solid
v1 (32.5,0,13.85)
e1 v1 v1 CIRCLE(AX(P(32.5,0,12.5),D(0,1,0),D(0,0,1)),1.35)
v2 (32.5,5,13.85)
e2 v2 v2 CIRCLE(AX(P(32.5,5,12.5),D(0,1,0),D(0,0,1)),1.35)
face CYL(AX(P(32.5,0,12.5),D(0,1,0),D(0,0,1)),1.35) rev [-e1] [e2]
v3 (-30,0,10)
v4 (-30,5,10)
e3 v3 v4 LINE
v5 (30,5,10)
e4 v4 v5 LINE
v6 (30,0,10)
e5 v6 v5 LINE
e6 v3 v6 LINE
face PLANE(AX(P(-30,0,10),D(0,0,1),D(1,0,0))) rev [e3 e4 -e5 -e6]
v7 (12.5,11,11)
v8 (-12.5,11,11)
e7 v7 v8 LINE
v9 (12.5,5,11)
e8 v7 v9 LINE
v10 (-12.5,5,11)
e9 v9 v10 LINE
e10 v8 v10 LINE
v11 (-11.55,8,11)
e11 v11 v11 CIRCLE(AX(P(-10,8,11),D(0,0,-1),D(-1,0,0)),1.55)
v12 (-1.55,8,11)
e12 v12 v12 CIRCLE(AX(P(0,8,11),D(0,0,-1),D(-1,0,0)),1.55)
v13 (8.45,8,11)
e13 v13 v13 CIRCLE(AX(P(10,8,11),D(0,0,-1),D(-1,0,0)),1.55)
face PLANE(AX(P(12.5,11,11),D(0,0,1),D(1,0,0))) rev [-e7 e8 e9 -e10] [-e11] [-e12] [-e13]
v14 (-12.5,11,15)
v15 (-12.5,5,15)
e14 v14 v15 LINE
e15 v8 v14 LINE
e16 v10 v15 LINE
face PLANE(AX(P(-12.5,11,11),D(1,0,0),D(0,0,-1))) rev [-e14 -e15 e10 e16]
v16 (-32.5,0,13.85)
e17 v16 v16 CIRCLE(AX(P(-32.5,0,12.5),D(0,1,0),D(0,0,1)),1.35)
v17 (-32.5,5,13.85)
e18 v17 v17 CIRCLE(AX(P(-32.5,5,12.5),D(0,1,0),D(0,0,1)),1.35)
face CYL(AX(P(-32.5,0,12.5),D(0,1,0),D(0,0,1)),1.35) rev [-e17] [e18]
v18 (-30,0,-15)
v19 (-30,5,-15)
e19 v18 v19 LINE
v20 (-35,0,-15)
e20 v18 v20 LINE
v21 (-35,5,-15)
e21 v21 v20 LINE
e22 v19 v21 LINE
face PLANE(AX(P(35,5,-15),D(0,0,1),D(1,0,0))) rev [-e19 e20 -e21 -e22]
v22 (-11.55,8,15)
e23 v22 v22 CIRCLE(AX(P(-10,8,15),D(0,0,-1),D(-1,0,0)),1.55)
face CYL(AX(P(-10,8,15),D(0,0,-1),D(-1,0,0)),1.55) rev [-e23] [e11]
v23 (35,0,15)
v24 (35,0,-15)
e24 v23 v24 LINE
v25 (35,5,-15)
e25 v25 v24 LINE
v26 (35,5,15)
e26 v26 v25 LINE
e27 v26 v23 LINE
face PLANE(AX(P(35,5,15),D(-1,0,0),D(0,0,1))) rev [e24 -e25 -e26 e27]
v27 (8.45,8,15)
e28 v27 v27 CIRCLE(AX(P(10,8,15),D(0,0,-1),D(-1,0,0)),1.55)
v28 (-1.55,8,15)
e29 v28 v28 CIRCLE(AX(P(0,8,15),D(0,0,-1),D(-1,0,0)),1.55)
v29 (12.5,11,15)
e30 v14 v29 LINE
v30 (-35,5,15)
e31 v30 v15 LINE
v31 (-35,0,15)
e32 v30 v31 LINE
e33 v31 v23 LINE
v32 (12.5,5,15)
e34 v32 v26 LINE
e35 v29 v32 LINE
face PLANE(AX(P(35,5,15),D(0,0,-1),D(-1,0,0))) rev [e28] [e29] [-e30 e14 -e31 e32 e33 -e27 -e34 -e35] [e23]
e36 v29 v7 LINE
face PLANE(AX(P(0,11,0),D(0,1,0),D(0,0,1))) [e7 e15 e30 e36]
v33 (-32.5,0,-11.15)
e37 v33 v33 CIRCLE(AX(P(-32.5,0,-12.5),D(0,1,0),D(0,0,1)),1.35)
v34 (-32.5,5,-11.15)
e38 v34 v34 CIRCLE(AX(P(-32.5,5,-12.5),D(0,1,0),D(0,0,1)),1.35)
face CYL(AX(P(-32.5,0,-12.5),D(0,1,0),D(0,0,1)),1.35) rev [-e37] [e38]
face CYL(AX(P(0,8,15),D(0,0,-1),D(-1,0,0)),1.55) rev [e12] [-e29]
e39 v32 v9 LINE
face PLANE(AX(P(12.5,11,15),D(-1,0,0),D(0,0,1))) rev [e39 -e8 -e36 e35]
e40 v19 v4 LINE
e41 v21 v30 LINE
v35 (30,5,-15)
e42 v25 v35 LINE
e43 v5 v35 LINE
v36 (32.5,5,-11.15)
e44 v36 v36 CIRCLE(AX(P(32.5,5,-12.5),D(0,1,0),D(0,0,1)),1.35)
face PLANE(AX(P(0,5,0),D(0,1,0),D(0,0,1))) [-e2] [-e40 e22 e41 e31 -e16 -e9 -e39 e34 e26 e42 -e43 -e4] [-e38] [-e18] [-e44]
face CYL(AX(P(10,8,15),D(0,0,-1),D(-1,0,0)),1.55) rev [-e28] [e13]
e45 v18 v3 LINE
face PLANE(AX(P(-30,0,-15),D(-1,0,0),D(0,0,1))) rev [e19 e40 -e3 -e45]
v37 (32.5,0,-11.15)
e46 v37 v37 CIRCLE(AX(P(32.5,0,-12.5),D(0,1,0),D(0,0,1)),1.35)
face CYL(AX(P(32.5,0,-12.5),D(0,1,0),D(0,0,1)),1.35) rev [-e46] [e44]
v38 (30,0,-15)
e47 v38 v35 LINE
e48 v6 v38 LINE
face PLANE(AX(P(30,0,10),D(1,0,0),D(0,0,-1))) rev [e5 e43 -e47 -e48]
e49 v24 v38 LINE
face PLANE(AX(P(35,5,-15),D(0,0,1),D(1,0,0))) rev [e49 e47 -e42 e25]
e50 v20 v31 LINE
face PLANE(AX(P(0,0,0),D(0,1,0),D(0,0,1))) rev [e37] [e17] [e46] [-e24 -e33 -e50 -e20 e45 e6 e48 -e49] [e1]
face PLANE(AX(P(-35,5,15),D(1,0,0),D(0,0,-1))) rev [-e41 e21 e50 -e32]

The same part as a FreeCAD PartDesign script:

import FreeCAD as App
import Part
import Sketcher

doc = App.newDocument("Part")
body = doc.addObject("PartDesign::Body", "Body")

sketch1 = body.newObject("Sketcher::SketchObject", "Sketch")
sketch1.AttachmentSupport = (doc.getObject("XZ_Plane"), [""])
sketch1.MapMode = "FlatFace"
sketch1.addGeometry(Part.LineSegment(App.Vector(-35, -15, 0), App.Vector(-35, 15, 0)), False)
sketch1.addGeometry(Part.LineSegment(App.Vector(-35, 15, 0), App.Vector(35, 15, 0)), False)
sketch1.addGeometry(Part.LineSegment(App.Vector(35, 15, 0), App.Vector(35, -15, 0)), False)
sketch1.addGeometry(Part.LineSegment(App.Vector(35, -15, 0), App.Vector(-35, -15, 0)), False)
sketch1.addConstraint(Sketcher.Constraint("Coincident", 0, 2, 1, 1))
sketch1.addConstraint(Sketcher.Constraint("Coincident", 1, 2, 2, 1))
sketch1.addConstraint(Sketcher.Constraint("Coincident", 2, 2, 3, 1))
sketch1.addConstraint(Sketcher.Constraint("Coincident", 3, 2, 0, 1))
sketch1.addConstraint(Sketcher.Constraint("Vertical", 0))
sketch1.addConstraint(Sketcher.Constraint("Horizontal", 1))
sketch1.addConstraint(Sketcher.Constraint("Vertical", 2))
sketch1.addConstraint(Sketcher.Constraint("Horizontal", 3))
sketch1.addConstraint(Sketcher.Constraint("Symmetric", 0, 2, 2, 2, -1, 1))
sketch1.addConstraint(Sketcher.Constraint("DistanceX", 1, 1, 1, 2, 70.0))
sketch1.addConstraint(Sketcher.Constraint("DistanceY", 0, 1, 0, 2, 30.0))
pad1 = body.newObject("PartDesign::Pad", "Pad")
pad1.Profile = sketch1
pad1.Length = 5
pad1.Reversed = True

sketch2 = body.newObject("Sketcher::SketchObject", "Sketch001")
sketch2.AttachmentSupport = (doc.getObject("XZ_Plane"), [""])
sketch2.MapMode = "FlatFace"
sketch2.AttachmentOffset = App.Placement(App.Vector(0, 0, -5), App.Rotation())
sketch2.addGeometry(Part.Circle(App.Vector(-32.5, -12.5, 0), App.Vector(0, 0, 1), 1.4), False)
sketch2.addGeometry(Part.Circle(App.Vector(32.5, -12.5, 0), App.Vector(0, 0, 1), 1.4), False)
sketch2.addGeometry(Part.Circle(App.Vector(-32.5, 12.5, 0), App.Vector(0, 0, 1), 1.4), False)
sketch2.addGeometry(Part.Circle(App.Vector(32.5, 12.5, 0), App.Vector(0, 0, 1), 1.4), False)
sketch2.addConstraint(Sketcher.Constraint("Equal", 0, 1))
sketch2.addConstraint(Sketcher.Constraint("Equal", 1, 2))
sketch2.addConstraint(Sketcher.Constraint("Equal", 2, 3))
sketch2.addConstraint(Sketcher.Constraint("Symmetric", 1, 3, 2, 3, -1, 1))
sketch2.addConstraint(Sketcher.Constraint("Symmetric", 0, 3, 3, 3, -1, 1))
sketch2.addConstraint(Sketcher.Constraint("Symmetric", 0, 3, 1, 3, -2))
sketch2.addConstraint(Sketcher.Constraint("Diameter", 0, 2.7))
sketch2.addConstraint(Sketcher.Constraint("DistanceX", 0, 3, 1, 3, 65.0))
sketch2.addConstraint(Sketcher.Constraint("DistanceY", 0, 3, 2, 3, 25.0))
pocket1 = body.newObject("PartDesign::Pocket", "Pocket")
pocket1.Profile = sketch2
pocket1.Type = "ThroughAll"
pocket1.Reversed = True

sketch3 = body.newObject("Sketcher::SketchObject", "Sketch002")
sketch3.AttachmentSupport = (doc.getObject("XZ_Plane"), [""])
sketch3.MapMode = "FlatFace"
sketch3.AttachmentOffset = App.Placement(App.Vector(0, 0, -5), App.Rotation())
sketch3.addGeometry(Part.LineSegment(App.Vector(-12.5, 11, 0), App.Vector(-12.5, 15, 0)), False)
sketch3.addGeometry(Part.LineSegment(App.Vector(-12.5, 15, 0), App.Vector(12.5, 15, 0)), False)
sketch3.addGeometry(Part.LineSegment(App.Vector(12.5, 15, 0), App.Vector(12.5, 11, 0)), False)
sketch3.addGeometry(Part.LineSegment(App.Vector(12.5, 11, 0), App.Vector(-12.5, 11, 0)), False)
sketch3.addConstraint(Sketcher.Constraint("Coincident", 0, 2, 1, 1))
sketch3.addConstraint(Sketcher.Constraint("Coincident", 1, 2, 2, 1))
sketch3.addConstraint(Sketcher.Constraint("Coincident", 2, 2, 3, 1))
sketch3.addConstraint(Sketcher.Constraint("Coincident", 3, 2, 0, 1))
sketch3.addConstraint(Sketcher.Constraint("Vertical", 0))
sketch3.addConstraint(Sketcher.Constraint("Horizontal", 1))
sketch3.addConstraint(Sketcher.Constraint("Vertical", 2))
sketch3.addConstraint(Sketcher.Constraint("Horizontal", 3))
sketch3.addConstraint(Sketcher.Constraint("DistanceX", 1, 1, 1, 2, 25.0))
sketch3.addConstraint(Sketcher.Constraint("DistanceY", 0, 1, 0, 2, 4.0))
sketch3.addConstraint(Sketcher.Constraint("DistanceY", -1, 1, 0, 2, 15.0))
sketch3.addConstraint(Sketcher.Constraint("DistanceX", 0, 2, -1, 1, 12.5))
pad2 = body.newObject("PartDesign::Pad", "Pad001")
pad2.Profile = sketch3
pad2.Length = 6
pad2.Reversed = True

sketch4 = body.newObject("Sketcher::SketchObject", "Sketch003")
sketch4.AttachmentSupport = (doc.getObject("XY_Plane"), [""])
sketch4.MapMode = "FlatFace"
sketch4.AttachmentOffset = App.Placement(App.Vector(0, 0, 11), App.Rotation())
sketch4.addGeometry(Part.Circle(App.Vector(10, 8, 0), App.Vector(0, 0, 1), 1.6), False)
sketch4.addGeometry(Part.Circle(App.Vector(0, 8, 0), App.Vector(0, 0, 1), 1.6), False)
sketch4.addGeometry(Part.Circle(App.Vector(-10, 8, 0), App.Vector(0, 0, 1), 1.6), False)
sketch4.addConstraint(Sketcher.Constraint("Equal", 0, 1))
sketch4.addConstraint(Sketcher.Constraint("Equal", 1, 2))
sketch4.addConstraint(Sketcher.Constraint("Symmetric", 0, 3, 2, 3, -2))
sketch4.addConstraint(Sketcher.Constraint("PointOnObject", 1, 3, -2))
sketch4.addConstraint(Sketcher.Constraint("Horizontal", 0, 3, 1, 3))
sketch4.addConstraint(Sketcher.Constraint("Diameter", 0, 3.1))
sketch4.addConstraint(Sketcher.Constraint("DistanceX", -1, 1, 0, 3, 10.0))
sketch4.addConstraint(Sketcher.Constraint("DistanceY", -1, 1, 0, 3, 8.0))
pocket2 = body.newObject("PartDesign::Pocket", "Pocket001")
pocket2.Profile = sketch4
pocket2.Type = "ThroughAll"
pocket2.Reversed = True

sketch5 = body.newObject("Sketcher::SketchObject", "Sketch004")
sketch5.AttachmentSupport = (doc.getObject("XZ_Plane"), [""])
sketch5.MapMode = "FlatFace"
sketch5.AttachmentOffset = App.Placement(App.Vector(0, 0, -5), App.Rotation())
sketch5.addGeometry(Part.LineSegment(App.Vector(-30, -15, 0), App.Vector(-30, 10, 0)), False)
sketch5.addGeometry(Part.LineSegment(App.Vector(-30, 10, 0), App.Vector(30, 10, 0)), False)
sketch5.addGeometry(Part.LineSegment(App.Vector(30, 10, 0), App.Vector(30, -15, 0)), False)
sketch5.addGeometry(Part.LineSegment(App.Vector(30, -15, 0), App.Vector(-30, -15, 0)), False)
sketch5.addConstraint(Sketcher.Constraint("Coincident", 0, 2, 1, 1))
sketch5.addConstraint(Sketcher.Constraint("Coincident", 1, 2, 2, 1))
sketch5.addConstraint(Sketcher.Constraint("Coincident", 2, 2, 3, 1))
sketch5.addConstraint(Sketcher.Constraint("Coincident", 3, 2, 0, 1))
sketch5.addConstraint(Sketcher.Constraint("Vertical", 0))
sketch5.addConstraint(Sketcher.Constraint("Horizontal", 1))
sketch5.addConstraint(Sketcher.Constraint("Vertical", 2))
sketch5.addConstraint(Sketcher.Constraint("Horizontal", 3))
sketch5.addConstraint(Sketcher.Constraint("DistanceX", 1, 1, 1, 2, 60.0))
sketch5.addConstraint(Sketcher.Constraint("DistanceY", 0, 1, 0, 2, 25.0))
sketch5.addConstraint(Sketcher.Constraint("DistanceX", 0, 2, -1, 1, 30.0))
sketch5.addConstraint(Sketcher.Constraint("DistanceY", -1, 1, 0, 2, 10.0))
pocket3 = body.newObject("PartDesign::Pocket", "Pocket002")
pocket3.Profile = sketch5
pocket3.Type = "ThroughAll"
pocket3.Reversed = True

doc.recompute()
